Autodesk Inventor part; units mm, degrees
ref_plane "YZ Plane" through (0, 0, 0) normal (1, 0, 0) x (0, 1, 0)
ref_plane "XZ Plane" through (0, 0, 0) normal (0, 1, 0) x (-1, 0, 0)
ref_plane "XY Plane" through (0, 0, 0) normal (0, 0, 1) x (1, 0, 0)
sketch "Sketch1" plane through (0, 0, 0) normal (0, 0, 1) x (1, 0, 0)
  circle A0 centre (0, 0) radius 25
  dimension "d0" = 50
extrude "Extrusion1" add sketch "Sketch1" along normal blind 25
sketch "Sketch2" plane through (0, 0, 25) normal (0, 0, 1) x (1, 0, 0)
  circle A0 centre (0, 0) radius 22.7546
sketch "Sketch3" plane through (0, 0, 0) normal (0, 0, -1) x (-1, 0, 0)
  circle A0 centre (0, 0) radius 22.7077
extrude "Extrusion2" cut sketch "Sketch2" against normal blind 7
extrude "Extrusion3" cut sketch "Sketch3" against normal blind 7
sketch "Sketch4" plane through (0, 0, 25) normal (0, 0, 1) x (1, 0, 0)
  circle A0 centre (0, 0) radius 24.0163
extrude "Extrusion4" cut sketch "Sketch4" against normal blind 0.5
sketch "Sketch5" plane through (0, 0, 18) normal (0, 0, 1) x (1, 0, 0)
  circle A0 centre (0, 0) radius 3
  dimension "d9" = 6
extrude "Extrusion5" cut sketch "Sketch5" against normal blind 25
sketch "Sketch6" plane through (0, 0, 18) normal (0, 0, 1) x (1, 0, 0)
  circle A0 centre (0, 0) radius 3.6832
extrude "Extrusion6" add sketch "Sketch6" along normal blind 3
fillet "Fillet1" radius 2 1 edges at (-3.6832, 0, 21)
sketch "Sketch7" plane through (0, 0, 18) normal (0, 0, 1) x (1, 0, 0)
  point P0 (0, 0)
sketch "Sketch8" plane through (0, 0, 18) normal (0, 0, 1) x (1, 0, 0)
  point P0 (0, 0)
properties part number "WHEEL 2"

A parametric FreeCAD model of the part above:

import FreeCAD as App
import Part
import Sketcher


def edges_at(feature, points):
    """Names of the edges that pass closest to the given points."""
    edges = feature.Shape.Edges
    near = lambda p: min(range(len(edges)), key=lambda i: edges[i].distToShape(Part.Vertex(*p))[0])
    return sorted({f"Edge{near(p) + 1}" for p in points})

doc = App.newDocument("Part")
body = doc.addObject("PartDesign::Body", "Body")

sketch1 = body.newObject("Sketcher::SketchObject", "Sketch")
sketch1.AttachmentSupport = (doc.getObject("XY_Plane"), [""])
sketch1.MapMode = "FlatFace"
sketch1.addGeometry(Part.Circle(App.Vector(0, 0, 0), App.Vector(0, 0, 1), 25), False)
sketch1.addConstraint(Sketcher.Constraint("Coincident", 0, 3, -1, 1))
sketch1.addConstraint(Sketcher.Constraint("Diameter", 0, 50.0))
pad1 = body.newObject("PartDesign::Pad", "Pad")
pad1.Profile = sketch1
pad1.Length = 25

sketch2 = body.newObject("Sketcher::SketchObject", "Sketch001")
sketch2.AttachmentSupport = (doc.getObject("XY_Plane"), [""])
sketch2.MapMode = "FlatFace"
sketch2.AttachmentOffset = App.Placement(App.Vector(0, 0, 25), App.Rotation())
sketch2.addGeometry(Part.Circle(App.Vector(0, 0, 0), App.Vector(0, 0, 1), 23), False)
sketch2.addConstraint(Sketcher.Constraint("Coincident", 0, 3, -1, 1))
sketch2.addConstraint(Sketcher.Constraint("Diameter", 0, 45.5092))
pocket1 = body.newObject("PartDesign::Pocket", "Pocket")
pocket1.Profile = sketch2
pocket1.Length = 7

sketch3 = body.newObject("Sketcher::SketchObject", "Sketch002")
sketch3.AttachmentSupport = (doc.getObject("XY_Plane"), [""])
sketch3.MapMode = "FlatFace"
sketch3.addGeometry(Part.Circle(App.Vector(0, 0, 0), App.Vector(0, 0, 1), 23), False)
sketch3.addConstraint(Sketcher.Constraint("Coincident", 0, 3, -1, 1))
sketch3.addConstraint(Sketcher.Constraint("Diameter", 0, 45.4154))
pocket2 = body.newObject("PartDesign::Pocket", "Pocket001")
pocket2.Profile = sketch3
pocket2.Length = 7
pocket2.Reversed = True

sketch4 = body.newObject("Sketcher::SketchObject", "Sketch003")
sketch4.AttachmentSupport = (doc.getObject("XY_Plane"), [""])
sketch4.MapMode = "FlatFace"
sketch4.AttachmentOffset = App.Placement(App.Vector(0, 0, 25), App.Rotation())
sketch4.addGeometry(Part.Circle(App.Vector(0, 0, 0), App.Vector(0, 0, 1), 24), False)
sketch4.addConstraint(Sketcher.Constraint("Coincident", 0, 3, -1, 1))
sketch4.addConstraint(Sketcher.Constraint("Diameter", 0, 48.0326))
pocket3 = body.newObject("PartDesign::Pocket", "Pocket002")
pocket3.Profile = sketch4
pocket3.Length = 0.5

sketch5 = body.newObject("Sketcher::SketchObject", "Sketch004")
sketch5.AttachmentSupport = (doc.getObject("XY_Plane"), [""])
sketch5.MapMode = "FlatFace"
sketch5.AttachmentOffset = App.Placement(App.Vector(0, 0, 18), App.Rotation())
sketch5.addGeometry(Part.Circle(App.Vector(0, 0, 0), App.Vector(0, 0, 1), 3), False)
sketch5.addConstraint(Sketcher.Constraint("Coincident", 0, 3, -1, 1))
sketch5.addConstraint(Sketcher.Constraint("Diameter", 0, 6.0))
pocket4 = body.newObject("PartDesign::Pocket", "Pocket003")
pocket4.Profile = sketch5
pocket4.Length = 25

sketch6 = body.newObject("Sketcher::SketchObject", "Sketch005")
sketch6.AttachmentSupport = (doc.getObject("XY_Plane"), [""])
sketch6.MapMode = "FlatFace"
sketch6.AttachmentOffset = App.Placement(App.Vector(0, 0, 18), App.Rotation())
sketch6.addGeometry(Part.Circle(App.Vector(0, 0, 0), App.Vector(0, 0, 1), 3.7), False)
sketch6.addConstraint(Sketcher.Constraint("Coincident", 0, 3, -1, 1))
sketch6.addConstraint(Sketcher.Constraint("Diameter", 0, 7.3664))
pad2 = body.newObject("PartDesign::Pad", "Pad001")
pad2.Profile = sketch6
pad2.Length = 3
doc.recompute()

fillet = body.newObject("PartDesign::Fillet", "Fillet")
fillet.Base = (pad2, edges_at(pad2, [(-3.683, 0, 21)]))
fillet.Radius = 2

doc.recompute()
